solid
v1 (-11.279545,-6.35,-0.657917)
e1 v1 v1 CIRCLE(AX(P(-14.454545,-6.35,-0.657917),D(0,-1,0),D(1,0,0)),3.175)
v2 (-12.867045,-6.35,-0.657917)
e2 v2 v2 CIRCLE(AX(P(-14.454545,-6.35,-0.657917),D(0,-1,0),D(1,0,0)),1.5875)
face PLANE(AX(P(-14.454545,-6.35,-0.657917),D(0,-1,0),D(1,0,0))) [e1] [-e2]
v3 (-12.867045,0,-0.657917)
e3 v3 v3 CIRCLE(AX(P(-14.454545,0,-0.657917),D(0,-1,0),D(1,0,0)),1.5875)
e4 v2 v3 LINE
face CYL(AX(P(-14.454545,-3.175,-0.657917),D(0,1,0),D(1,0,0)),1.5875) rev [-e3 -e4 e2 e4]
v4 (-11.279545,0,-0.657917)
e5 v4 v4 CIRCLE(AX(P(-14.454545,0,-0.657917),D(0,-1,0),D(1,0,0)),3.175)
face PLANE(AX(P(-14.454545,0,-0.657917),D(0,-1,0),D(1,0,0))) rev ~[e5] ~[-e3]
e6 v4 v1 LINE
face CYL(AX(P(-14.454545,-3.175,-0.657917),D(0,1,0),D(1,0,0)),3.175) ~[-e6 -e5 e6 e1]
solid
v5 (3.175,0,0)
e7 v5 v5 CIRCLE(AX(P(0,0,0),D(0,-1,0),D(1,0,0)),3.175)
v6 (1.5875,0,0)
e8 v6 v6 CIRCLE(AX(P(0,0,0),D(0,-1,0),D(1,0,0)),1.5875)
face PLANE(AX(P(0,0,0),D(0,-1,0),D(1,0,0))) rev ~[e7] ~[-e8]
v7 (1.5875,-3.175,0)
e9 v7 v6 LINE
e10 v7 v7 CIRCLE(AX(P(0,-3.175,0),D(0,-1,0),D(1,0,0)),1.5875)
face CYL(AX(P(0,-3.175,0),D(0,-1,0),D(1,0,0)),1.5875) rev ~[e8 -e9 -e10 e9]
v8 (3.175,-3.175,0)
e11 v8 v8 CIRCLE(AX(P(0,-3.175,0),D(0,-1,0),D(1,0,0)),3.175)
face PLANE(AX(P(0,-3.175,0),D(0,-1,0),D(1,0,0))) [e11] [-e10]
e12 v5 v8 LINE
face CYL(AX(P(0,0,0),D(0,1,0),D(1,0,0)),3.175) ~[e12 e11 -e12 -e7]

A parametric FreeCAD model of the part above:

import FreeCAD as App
import Part
import Sketcher
from FreeCAD import Vector
Q = App.Units.Quantity

doc = App.newDocument("Part")
body = doc.addObject("PartDesign::Body", "Body")
body.AllowCompound = True

sketch1 = body.newObject("Sketcher::SketchObject", "Sketch")
sketch1.AttachmentSupport = (doc.getObject("XZ_Plane"), [""])
sketch1.MapMode = "FlatFace"
sketch1.addGeometry([
    Part.Circle(Vector(0, 0, 0), Vector(0, 0, 1), 3.2),
    Part.Circle(Vector(-14.5, -0.7, 0), Vector(0, 0, 1), 3.2),
    Part.Circle(Vector(-14.5, -0.7, 0), Vector(0, 0, 1), 1.6),
], False)
sketch1.addConstraint([
    Sketcher.Constraint("Coincident", 0, 3, -1, 1),
    Sketcher.Constraint("Coincident", 2, 3, 1, 3),
    Sketcher.Constraint("Equal", 0, 1),
    Sketcher.Constraint("Diameter", 0, Q("0.25 in")),
    Sketcher.Constraint("Diameter", 2, Q("0.125 in")),
    Sketcher.Constraint("DistanceX", 1, 3, -1, 1, 14.454545),
    Sketcher.Constraint("DistanceY", 1, 3, -1, 1, 0.657917),
])
pad1 = body.newObject("PartDesign::Pad", "Pad")
pad1.Profile = sketch1
pad1.Length = Q("0.125 in")

sketch2 = body.newObject("Sketcher::SketchObject", "Sketch001")
sketch2.AttachmentSupport = (doc.getObject("XZ_Plane"), [""])
sketch2.MapMode = "FlatFace"
sketch2.AttachmentOffset = App.Placement(Vector(0, 0, 0.125 * 25.4), App.Rotation())
sketch2.addGeometry(Part.Circle(Vector(0, 0, 0), Vector(0, 0, 1), 1.6), False)
sketch2.addConstraint([
    Sketcher.Constraint("Coincident", 0, 3, -1, 1),
    Sketcher.Constraint("Diameter", 0, Q("0.125 in")),
])
pocket1 = body.newObject("PartDesign::Pocket", "Pocket")
pocket1.Profile = sketch2
pocket1.Type = "ThroughAll"

sketch3 = body.newObject("Sketcher::SketchObject", "Sketch002")
sketch3.AttachmentSupport = (doc.getObject("XZ_Plane"), [""])
sketch3.MapMode = "FlatFace"
sketch3.AttachmentOffset = App.Placement(Vector(0, 0, 0.125 * 25.4), App.Rotation())
sketch3.addGeometry([
    Part.Circle(Vector(-14.5, -0.7, 0), Vector(0, 0, 1), 3.2),
    Part.Circle(Vector(-14.5, -0.7, 0), Vector(0, 0, 1), 1.6),
], False)
sketch3.addConstraint([
    Sketcher.Constraint("Coincident", 1, 3, 0, 3),
    Sketcher.Constraint("Diameter", 0, Q("0.25 in")),
    Sketcher.Constraint("Diameter", 1, Q("0.125 in")),
    Sketcher.Constraint("DistanceX", 0, 3, -1, 1, 14.454545),
    Sketcher.Constraint("DistanceY", 0, 3, -1, 1, 0.657917),
])
pad2 = body.newObject("PartDesign::Pad", "Pad001")
pad2.Profile = sketch3
pad2.Length = Q("0.125 in")

doc.recompute()
